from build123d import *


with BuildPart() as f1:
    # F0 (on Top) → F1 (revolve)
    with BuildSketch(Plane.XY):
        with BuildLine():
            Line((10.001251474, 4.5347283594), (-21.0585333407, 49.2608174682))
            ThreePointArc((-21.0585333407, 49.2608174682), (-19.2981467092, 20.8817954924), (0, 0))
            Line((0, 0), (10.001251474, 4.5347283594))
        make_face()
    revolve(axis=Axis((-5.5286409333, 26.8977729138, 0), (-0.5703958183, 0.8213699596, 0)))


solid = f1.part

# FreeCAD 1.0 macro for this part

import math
import FreeCAD as App
import Part
import Sketcher

V = App.Vector
Q = App.Units.Quantity

doc = App.newDocument("Part")
body = doc.addObject("PartDesign::Body", "Body")

# Sketch on XY plane
sketch1 = body.newObject("Sketcher::SketchObject", "Sketch")
sketch1.AttachmentSupport = (doc.getObject("XY_Plane"), [""])
sketch1.MapMode = "FlatFace"
sketch1.addGeometry([
    Part.LineSegment(V(10, 5, 0), V(-21, 49, 0)),
    Part.ArcOfCircle(Part.Circle(V(20, 38, 0), V(0, 0, 1), 42), math.radians(164), math.radians(242)),
    Part.LineSegment(V(0, 0, 0), V(10, 5, 0)),
], False)
sketch1.addGeometry(Part.LineSegment(V(10, 5, 0), V(-21, 49, 0)), True)  # axis
sketch1.addConstraint([
    Sketcher.Constraint("Coincident", 0, 2, 1, 1),
    Sketcher.Constraint("Coincident", 1, 2, 2, 1),
    Sketcher.Constraint("Coincident", 2, 2, 0, 1),
    Sketcher.Constraint("Coincident", 1, 2, -1, 1),
    Sketcher.Constraint("Coincident", 3, 1, 2, 2),
    Sketcher.Constraint("Coincident", 3, 2, 0, 2),
    Sketcher.Constraint("Radius", 1, Q("42.387957 mm")),
    Sketcher.Constraint("DistanceX", -1, 1, 1, 3, Q("19.677771 mm")),
    Sketcher.Constraint("DistanceX", -1, 1, 2, 2, Q("10.001251 mm")),
    Sketcher.Constraint("DistanceY", -1, 1, 2, 2, Q("4.534728 mm")),
    Sketcher.Constraint("DistanceY", 2, 2, 0, 2, Q("44.726089 mm")),
])
revolution = body.newObject("PartDesign::Revolution", "Revolution")
revolution.Profile = sketch1
revolution.ReferenceAxis = (sketch1, ["Axis0"])
revolution.Angle = 360

doc.recompute()
